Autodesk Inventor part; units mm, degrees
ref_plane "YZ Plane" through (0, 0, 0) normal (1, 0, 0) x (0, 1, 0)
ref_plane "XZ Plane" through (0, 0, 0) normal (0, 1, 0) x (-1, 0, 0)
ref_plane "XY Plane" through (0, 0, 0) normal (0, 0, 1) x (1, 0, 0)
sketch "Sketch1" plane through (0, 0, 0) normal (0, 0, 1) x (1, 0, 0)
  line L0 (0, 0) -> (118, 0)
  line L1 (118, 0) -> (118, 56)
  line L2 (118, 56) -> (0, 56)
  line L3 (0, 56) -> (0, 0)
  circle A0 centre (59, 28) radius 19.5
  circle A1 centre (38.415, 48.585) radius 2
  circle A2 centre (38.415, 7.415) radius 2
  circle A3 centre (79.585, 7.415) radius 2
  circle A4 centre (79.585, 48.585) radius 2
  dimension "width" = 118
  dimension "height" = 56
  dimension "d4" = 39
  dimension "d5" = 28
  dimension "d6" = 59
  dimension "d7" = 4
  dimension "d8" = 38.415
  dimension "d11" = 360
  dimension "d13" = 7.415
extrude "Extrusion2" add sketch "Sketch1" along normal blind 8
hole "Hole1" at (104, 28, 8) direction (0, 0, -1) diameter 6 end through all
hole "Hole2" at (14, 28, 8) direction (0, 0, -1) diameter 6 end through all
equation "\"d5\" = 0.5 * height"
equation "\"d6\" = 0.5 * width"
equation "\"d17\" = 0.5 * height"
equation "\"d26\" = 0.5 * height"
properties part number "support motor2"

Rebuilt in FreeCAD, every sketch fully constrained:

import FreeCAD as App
import Part
import Sketcher


def add_polygon(sketch, points):
    """Adds a closed chain of lines whose ends are joined by coincident constraints."""
    first, n = sketch.GeometryCount, len(points)
    for a, b in zip(points, points[1:] + points[:1]):
        sketch.addGeometry(Part.LineSegment(App.Vector(*a, 0), App.Vector(*b, 0)), False)
    for i in range(n):
        sketch.addConstraint(Sketcher.Constraint("Coincident", first + i, 2, first + (i + 1) % n, 1))

doc = App.newDocument("Part")
body = doc.addObject("PartDesign::Body", "Body")

# Sketch on XY plane
sketch1 = body.newObject("Sketcher::SketchObject", "Sketch")
sketch1.AttachmentSupport = (doc.getObject("XY_Plane"), [""])
sketch1.MapMode = "FlatFace"
add_polygon(sketch1, [(0, 56), (0, 0), (118, 0), (118, 56)])  # lines 0-3
sketch1.addGeometry(Part.Circle(App.Vector(38.4, 7.4, 0), App.Vector(0, 0, 1), 2), False)  # 4
sketch1.addGeometry(Part.Circle(App.Vector(79.6, 7.4, 0), App.Vector(0, 0, 1), 2), False)  # 5
sketch1.addGeometry(Part.Circle(App.Vector(38.4, 48.6, 0), App.Vector(0, 0, 1), 2), False)  # 6
sketch1.addGeometry(Part.Circle(App.Vector(59, 28, 0), App.Vector(0, 0, 1), 19.5), False)  # 7
sketch1.addGeometry(Part.Circle(App.Vector(79.6, 48.6, 0), App.Vector(0, 0, 1), 2), False)  # 8
sketch1.addConstraint(Sketcher.Constraint("Vertical", 0))
sketch1.addConstraint(Sketcher.Constraint("Horizontal", 1))
sketch1.addConstraint(Sketcher.Constraint("Vertical", 2))
sketch1.addConstraint(Sketcher.Constraint("Horizontal", 3))
sketch1.addConstraint(Sketcher.Constraint("Coincident", 0, 2, -1, 1))
sketch1.addConstraint(Sketcher.Constraint("Equal", 4, 5))
sketch1.addConstraint(Sketcher.Constraint("Equal", 5, 6))
sketch1.addConstraint(Sketcher.Constraint("Equal", 6, 8))
sketch1.addConstraint(Sketcher.Constraint("Horizontal", 4, 3, 5, 3))
sketch1.addConstraint(Sketcher.Constraint("Horizontal", 6, 3, 8, 3))
sketch1.addConstraint(Sketcher.Constraint("Vertical", 4, 3, 6, 3))
sketch1.addConstraint(Sketcher.Constraint("Vertical", 5, 3, 8, 3))
sketch1.addConstraint(Sketcher.Constraint("Diameter", 4, 4.0))
sketch1.addConstraint(Sketcher.Constraint("Diameter", 7, 39.0))
sketch1.addConstraint(Sketcher.Constraint("DistanceX", 1, 1, 1, 2, 118.0))
sketch1.addConstraint(Sketcher.Constraint("DistanceY", 0, 2, 0, 1, 56.0))
sketch1.addConstraint(Sketcher.Constraint("DistanceX", -1, 1, 7, 3, 59.0))
sketch1.addConstraint(Sketcher.Constraint("DistanceY", -1, 1, 7, 3, 28.0))
sketch1.addConstraint(Sketcher.Constraint("DistanceX", -1, 1, 4, 3, 38.415))
sketch1.addConstraint(Sketcher.Constraint("DistanceY", -1, 1, 4, 3, 7.415))
sketch1.addConstraint(Sketcher.Constraint("DistanceX", 5, 3, 1, 2, 38.415))
sketch1.addConstraint(Sketcher.Constraint("DistanceY", 8, 3, 2, 2, 7.415))
pad1 = body.newObject("PartDesign::Pad", "Pad")
pad1.Profile = sketch1
pad1.Length = 8

# Sketch on XY plane
sketch2 = body.newObject("Sketcher::SketchObject", "Sketch001")
sketch2.AttachmentSupport = (doc.getObject("XY_Plane"), [""])
sketch2.MapMode = "FlatFace"
sketch2.AttachmentOffset = App.Placement(App.Vector(0, 0, 8), App.Rotation())
sketch2.addGeometry(Part.Circle(App.Vector(104, 28, 0), App.Vector(0, 0, 1), 3), False)
sketch2.addConstraint(Sketcher.Constraint("Diameter", 0, 6.0))
sketch2.addConstraint(Sketcher.Constraint("DistanceX", -1, 1, 0, 3, 104.0))
sketch2.addConstraint(Sketcher.Constraint("DistanceY", -1, 1, 0, 3, 28.0))
doc.recompute()
hole = body.newObject("PartDesign::Hole", "Hole")
hole.Profile = sketch2
hole.ThreadType = "None"
hole.Diameter = 6
hole.DepthType = "ThroughAll"

# Sketch on XY plane
sketch3 = body.newObject("Sketcher::SketchObject", "Sketch002")
sketch3.AttachmentSupport = (doc.getObject("XY_Plane"), [""])
sketch3.MapMode = "FlatFace"
sketch3.AttachmentOffset = App.Placement(App.Vector(0, 0, 8), App.Rotation())
sketch3.addGeometry(Part.Circle(App.Vector(14, 28, 0), App.Vector(0, 0, 1), 3), False)
sketch3.addConstraint(Sketcher.Constraint("Diameter", 0, 6.0))
sketch3.addConstraint(Sketcher.Constraint("DistanceX", -1, 1, 0, 3, 14.0))
sketch3.addConstraint(Sketcher.Constraint("DistanceY", -1, 1, 0, 3, 28.0))
doc.recompute()
hole2 = body.newObject("PartDesign::Hole", "Hole001")
hole2.Profile = sketch3
hole2.ThreadType = "None"
hole2.Diameter = 6
hole2.DepthType = "ThroughAll"

doc.recompute()
